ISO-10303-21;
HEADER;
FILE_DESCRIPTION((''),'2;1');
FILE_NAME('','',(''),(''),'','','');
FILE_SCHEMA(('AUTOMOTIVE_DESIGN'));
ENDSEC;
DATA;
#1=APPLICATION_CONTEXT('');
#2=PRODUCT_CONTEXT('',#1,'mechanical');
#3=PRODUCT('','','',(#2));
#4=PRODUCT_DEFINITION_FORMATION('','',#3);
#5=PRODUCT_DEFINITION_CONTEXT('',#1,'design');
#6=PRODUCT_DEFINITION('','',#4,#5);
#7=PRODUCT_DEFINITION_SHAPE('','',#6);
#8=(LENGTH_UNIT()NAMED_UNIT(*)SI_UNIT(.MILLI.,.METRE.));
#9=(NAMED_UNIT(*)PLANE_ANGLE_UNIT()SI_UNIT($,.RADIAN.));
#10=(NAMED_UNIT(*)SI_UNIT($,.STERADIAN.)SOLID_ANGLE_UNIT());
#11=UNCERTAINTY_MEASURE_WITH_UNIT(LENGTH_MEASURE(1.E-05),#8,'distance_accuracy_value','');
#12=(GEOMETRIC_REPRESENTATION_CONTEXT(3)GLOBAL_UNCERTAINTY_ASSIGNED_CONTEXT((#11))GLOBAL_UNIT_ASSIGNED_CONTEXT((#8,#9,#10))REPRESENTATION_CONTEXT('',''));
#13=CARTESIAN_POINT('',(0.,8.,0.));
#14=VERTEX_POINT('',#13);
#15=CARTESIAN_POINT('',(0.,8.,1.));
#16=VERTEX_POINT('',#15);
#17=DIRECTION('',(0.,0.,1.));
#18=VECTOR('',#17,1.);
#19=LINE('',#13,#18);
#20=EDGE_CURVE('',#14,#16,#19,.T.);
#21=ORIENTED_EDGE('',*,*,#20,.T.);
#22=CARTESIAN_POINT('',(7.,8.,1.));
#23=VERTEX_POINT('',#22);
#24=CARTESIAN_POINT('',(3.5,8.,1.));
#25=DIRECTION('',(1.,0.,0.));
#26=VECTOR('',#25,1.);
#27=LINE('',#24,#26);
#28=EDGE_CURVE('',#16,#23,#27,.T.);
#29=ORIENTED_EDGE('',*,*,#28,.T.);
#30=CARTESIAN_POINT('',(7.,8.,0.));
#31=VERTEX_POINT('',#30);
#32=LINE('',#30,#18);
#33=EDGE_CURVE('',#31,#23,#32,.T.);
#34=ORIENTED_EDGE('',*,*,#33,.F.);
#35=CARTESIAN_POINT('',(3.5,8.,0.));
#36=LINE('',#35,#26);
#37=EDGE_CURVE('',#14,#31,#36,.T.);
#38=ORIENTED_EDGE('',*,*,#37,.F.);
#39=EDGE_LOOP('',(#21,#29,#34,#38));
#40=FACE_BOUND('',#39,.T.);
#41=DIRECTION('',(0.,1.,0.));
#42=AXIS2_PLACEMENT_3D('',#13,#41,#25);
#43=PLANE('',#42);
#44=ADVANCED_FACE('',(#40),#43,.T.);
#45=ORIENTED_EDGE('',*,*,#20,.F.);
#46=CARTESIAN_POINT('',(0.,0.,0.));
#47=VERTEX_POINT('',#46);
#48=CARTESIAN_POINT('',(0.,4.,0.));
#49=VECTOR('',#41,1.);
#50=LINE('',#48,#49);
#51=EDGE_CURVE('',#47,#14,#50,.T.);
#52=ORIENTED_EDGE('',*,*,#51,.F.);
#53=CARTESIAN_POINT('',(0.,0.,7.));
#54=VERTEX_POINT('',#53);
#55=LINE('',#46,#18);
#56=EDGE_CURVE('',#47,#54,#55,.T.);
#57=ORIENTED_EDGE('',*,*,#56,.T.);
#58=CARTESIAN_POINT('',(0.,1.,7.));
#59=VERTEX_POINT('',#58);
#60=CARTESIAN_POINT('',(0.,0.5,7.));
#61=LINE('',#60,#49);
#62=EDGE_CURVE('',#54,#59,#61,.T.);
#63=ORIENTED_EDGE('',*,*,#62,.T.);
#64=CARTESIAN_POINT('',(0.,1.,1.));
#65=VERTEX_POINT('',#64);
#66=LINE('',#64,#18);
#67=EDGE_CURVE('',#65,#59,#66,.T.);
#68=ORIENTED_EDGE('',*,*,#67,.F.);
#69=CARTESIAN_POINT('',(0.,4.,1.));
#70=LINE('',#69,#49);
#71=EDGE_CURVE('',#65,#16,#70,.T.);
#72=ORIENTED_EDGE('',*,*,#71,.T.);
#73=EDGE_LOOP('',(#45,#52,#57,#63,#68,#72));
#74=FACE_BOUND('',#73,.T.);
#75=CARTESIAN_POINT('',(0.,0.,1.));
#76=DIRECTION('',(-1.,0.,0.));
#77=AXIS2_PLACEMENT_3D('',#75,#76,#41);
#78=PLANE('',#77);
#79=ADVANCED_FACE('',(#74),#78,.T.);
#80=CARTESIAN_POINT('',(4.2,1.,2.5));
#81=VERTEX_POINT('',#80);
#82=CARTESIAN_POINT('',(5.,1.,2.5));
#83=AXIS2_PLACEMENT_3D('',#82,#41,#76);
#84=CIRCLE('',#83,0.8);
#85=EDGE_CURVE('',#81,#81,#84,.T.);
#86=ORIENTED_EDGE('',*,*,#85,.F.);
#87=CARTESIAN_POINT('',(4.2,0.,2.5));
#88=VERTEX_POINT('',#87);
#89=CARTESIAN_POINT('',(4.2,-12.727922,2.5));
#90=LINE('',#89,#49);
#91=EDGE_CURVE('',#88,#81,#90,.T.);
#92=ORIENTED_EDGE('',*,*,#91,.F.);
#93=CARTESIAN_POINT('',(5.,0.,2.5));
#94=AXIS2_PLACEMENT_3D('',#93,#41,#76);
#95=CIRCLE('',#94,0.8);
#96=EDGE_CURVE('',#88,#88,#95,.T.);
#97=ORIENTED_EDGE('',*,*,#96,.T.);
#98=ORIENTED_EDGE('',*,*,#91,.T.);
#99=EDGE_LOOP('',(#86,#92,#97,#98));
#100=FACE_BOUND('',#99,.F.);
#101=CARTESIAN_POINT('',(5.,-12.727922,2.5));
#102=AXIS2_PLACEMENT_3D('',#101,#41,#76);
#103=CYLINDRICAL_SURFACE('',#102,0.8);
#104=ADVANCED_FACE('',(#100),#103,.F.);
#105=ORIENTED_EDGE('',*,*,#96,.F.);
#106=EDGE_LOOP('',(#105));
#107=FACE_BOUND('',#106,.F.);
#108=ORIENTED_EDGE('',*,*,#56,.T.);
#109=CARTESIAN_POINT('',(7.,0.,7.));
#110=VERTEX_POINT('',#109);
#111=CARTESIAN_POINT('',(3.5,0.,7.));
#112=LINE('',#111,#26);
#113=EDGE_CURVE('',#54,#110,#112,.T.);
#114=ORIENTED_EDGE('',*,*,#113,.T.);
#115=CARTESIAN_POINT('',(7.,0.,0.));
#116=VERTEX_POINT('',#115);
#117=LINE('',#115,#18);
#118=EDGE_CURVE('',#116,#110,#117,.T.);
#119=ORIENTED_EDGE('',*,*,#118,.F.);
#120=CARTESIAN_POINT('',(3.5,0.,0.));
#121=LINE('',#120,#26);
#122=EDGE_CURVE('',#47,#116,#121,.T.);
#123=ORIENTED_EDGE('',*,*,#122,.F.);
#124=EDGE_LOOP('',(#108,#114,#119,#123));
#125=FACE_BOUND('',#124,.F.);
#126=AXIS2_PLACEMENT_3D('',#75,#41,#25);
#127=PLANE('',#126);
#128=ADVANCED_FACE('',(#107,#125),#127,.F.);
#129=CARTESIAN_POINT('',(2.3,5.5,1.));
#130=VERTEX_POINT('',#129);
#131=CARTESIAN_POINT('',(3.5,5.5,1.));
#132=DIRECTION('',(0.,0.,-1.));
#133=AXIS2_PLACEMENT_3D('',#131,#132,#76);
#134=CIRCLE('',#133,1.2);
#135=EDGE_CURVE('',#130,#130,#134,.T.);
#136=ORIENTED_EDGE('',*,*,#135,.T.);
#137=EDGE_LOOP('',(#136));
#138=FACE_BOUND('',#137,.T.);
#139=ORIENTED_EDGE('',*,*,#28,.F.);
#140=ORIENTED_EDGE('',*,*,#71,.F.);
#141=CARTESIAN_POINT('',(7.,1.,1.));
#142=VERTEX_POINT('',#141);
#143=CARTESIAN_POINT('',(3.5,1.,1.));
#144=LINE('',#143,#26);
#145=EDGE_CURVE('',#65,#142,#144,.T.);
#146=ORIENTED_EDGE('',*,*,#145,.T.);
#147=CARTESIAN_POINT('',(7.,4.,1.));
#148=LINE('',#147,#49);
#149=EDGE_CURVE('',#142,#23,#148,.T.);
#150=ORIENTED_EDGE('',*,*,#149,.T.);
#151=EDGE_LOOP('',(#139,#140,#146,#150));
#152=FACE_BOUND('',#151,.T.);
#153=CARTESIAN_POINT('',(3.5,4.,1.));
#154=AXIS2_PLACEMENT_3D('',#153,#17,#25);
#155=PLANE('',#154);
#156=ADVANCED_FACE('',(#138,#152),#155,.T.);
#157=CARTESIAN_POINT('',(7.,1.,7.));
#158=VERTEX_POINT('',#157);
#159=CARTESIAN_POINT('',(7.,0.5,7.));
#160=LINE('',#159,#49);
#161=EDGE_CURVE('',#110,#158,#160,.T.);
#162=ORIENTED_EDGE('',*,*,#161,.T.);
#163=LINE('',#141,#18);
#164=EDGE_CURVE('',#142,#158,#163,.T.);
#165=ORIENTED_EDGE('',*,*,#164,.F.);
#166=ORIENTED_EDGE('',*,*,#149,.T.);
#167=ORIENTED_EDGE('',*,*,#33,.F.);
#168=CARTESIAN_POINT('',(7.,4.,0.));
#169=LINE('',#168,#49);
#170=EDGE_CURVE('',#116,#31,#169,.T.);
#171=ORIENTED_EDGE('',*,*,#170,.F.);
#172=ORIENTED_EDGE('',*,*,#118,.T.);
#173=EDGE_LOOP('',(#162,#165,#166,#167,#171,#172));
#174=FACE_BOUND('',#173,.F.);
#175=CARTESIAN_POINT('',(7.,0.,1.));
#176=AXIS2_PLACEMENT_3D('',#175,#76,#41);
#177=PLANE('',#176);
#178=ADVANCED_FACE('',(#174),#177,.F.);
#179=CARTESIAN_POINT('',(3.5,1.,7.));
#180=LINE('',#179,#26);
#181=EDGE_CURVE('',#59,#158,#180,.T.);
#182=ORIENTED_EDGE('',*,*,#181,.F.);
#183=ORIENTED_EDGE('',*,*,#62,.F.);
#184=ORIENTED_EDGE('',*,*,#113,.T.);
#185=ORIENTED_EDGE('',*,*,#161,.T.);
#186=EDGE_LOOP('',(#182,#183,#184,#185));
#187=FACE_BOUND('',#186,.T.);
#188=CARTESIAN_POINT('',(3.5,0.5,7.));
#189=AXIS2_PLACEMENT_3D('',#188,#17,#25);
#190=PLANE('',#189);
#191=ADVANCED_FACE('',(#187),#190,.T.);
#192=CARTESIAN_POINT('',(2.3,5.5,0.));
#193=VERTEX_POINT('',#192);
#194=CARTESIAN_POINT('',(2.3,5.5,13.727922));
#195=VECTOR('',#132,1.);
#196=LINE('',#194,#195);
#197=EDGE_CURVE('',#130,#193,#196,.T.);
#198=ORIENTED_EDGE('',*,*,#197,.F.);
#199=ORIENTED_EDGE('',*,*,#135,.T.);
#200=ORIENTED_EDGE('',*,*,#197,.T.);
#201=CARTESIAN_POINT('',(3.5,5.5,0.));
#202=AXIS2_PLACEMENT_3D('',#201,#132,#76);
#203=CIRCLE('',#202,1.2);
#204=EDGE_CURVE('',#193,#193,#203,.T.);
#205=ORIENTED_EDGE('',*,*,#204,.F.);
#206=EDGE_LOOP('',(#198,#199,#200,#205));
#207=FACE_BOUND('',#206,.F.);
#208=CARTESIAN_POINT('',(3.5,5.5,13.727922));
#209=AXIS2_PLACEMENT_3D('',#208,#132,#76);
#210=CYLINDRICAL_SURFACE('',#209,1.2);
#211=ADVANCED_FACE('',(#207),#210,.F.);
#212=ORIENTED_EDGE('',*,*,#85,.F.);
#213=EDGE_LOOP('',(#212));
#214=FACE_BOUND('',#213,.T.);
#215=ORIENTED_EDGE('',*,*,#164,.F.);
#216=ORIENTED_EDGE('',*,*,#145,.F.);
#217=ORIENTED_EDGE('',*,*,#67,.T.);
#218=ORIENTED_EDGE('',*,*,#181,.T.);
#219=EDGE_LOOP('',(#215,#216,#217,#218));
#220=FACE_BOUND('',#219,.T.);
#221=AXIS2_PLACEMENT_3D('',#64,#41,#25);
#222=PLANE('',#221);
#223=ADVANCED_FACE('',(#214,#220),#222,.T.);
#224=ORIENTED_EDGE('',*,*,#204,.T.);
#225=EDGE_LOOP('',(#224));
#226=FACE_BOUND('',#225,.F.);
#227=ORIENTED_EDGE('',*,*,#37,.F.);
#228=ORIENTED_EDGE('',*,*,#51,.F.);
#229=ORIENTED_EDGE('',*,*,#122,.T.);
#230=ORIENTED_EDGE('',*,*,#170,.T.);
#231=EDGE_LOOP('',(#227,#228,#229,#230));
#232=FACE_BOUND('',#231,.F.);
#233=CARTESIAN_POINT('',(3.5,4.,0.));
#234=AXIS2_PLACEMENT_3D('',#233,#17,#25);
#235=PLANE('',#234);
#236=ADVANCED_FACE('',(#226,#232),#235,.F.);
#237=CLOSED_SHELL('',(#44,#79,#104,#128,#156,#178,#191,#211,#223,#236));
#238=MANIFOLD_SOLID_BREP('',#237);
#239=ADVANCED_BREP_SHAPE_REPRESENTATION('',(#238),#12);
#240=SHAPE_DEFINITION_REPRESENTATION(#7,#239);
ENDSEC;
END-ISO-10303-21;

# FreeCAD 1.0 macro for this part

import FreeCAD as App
import Part
import Sketcher
from FreeCAD import Vector
Q = App.Units.Quantity

doc = App.newDocument("Part")
body = doc.addObject("PartDesign::Body", "Body")

# Sketch on XY plane
sketch1 = doc.addObject("Sketcher::SketchObject", "Sketch")
body.addObject(sketch1)
sketch1.AttachmentSupport = (doc.XY_Plane, [""])
sketch1.MapMode = "FlatFace"
sketch1.addGeometry([
    Part.LineSegment(Vector(0, 8, 0), Vector(0, 0, 0)),
    Part.LineSegment(Vector(0, 0, 0), Vector(7, 0, 0)),
    Part.LineSegment(Vector(7, 0, 0), Vector(7, 8, 0)),
    Part.LineSegment(Vector(7, 8, 0), Vector(0, 8, 0)),
], False)
sketch1.addConstraint([
    Sketcher.Constraint("Coincident", 0, 2, 1, 1),
    Sketcher.Constraint("Coincident", 1, 2, 2, 1),
    Sketcher.Constraint("Coincident", 2, 2, 3, 1),
    Sketcher.Constraint("Coincident", 3, 2, 0, 1),
    Sketcher.Constraint("Vertical", 0),
    Sketcher.Constraint("Horizontal", 1),
    Sketcher.Constraint("Vertical", 2),
    Sketcher.Constraint("Horizontal", 3),
    Sketcher.Constraint("Coincident", 0, 2, -1, 1),
    Sketcher.Constraint("DistanceX", 1, 1, 1, 2, Q("7 mm")),
    Sketcher.Constraint("DistanceY", 0, 2, 0, 1, Q("8 mm")),
])
pad1 = doc.addObject("PartDesign::Pad", "Pad")
body.addObject(pad1)
pad1.Profile = sketch1
pad1.Length = 1

# Sketch on XY plane
sketch2 = doc.addObject("Sketcher::SketchObject", "Sketch001")
body.addObject(sketch2)
sketch2.AttachmentSupport = (doc.XY_Plane, [""])
sketch2.MapMode = "FlatFace"
sketch2.AttachmentOffset = App.Placement(Vector(0, 0, 1), App.Rotation())
sketch2.addGeometry([
    Part.LineSegment(Vector(0, 1, 0), Vector(0, 0, 0)),
    Part.LineSegment(Vector(0, 0, 0), Vector(7, 0, 0)),
    Part.LineSegment(Vector(7, 0, 0), Vector(7, 1, 0)),
    Part.LineSegment(Vector(7, 1, 0), Vector(0, 1, 0)),
], False)
sketch2.addConstraint([
    Sketcher.Constraint("Coincident", 0, 2, 1, 1),
    Sketcher.Constraint("Coincident", 1, 2, 2, 1),
    Sketcher.Constraint("Coincident", 2, 2, 3, 1),
    Sketcher.Constraint("Coincident", 3, 2, 0, 1),
    Sketcher.Constraint("Vertical", 0),
    Sketcher.Constraint("Horizontal", 1),
    Sketcher.Constraint("Vertical", 2),
    Sketcher.Constraint("Horizontal", 3),
    Sketcher.Constraint("Coincident", 0, 2, -1, 1),
    Sketcher.Constraint("DistanceX", 1, 1, 1, 2, Q("7 mm")),
    Sketcher.Constraint("DistanceY", 0, 2, 0, 1, Q("1 mm")),
])
pad2 = doc.addObject("PartDesign::Pad", "Pad001")
body.addObject(pad2)
pad2.Profile = sketch2
pad2.Length = 6

# Sketch on XY plane
sketch3 = doc.addObject("Sketcher::SketchObject", "Sketch002")
body.addObject(sketch3)
sketch3.AttachmentSupport = (doc.XY_Plane, [""])
sketch3.MapMode = "FlatFace"
sketch3.AttachmentOffset = App.Placement(Vector(0, 0, 1), App.Rotation())
sketch3.addGeometry(Part.Circle(Vector(3.5, 5.5, 0), Vector(0, 0, 1), 1.2), False)
sketch3.addConstraint([
    Sketcher.Constraint("Diameter", 0, Q("2.4 mm")),
    Sketcher.Constraint("DistanceX", -1, 1, 0, 3, Q("3.5 mm")),
    Sketcher.Constraint("DistanceY", -1, 1, 0, 3, Q("5.5 mm")),
])
doc.recompute()
hole = doc.addObject("PartDesign::Hole", "Hole")
body.addObject(hole)
hole.Profile = sketch3
hole.ThreadType = "None"
hole.Diameter = 2.4
hole.DepthType = "ThroughAll"

# Sketch on XZ plane
sketch4 = doc.addObject("Sketcher::SketchObject", "Sketch003")
body.addObject(sketch4)
sketch4.AttachmentSupport = (doc.XZ_Plane, [""])
sketch4.MapMode = "FlatFace"
sketch4.addGeometry(Part.Circle(Vector(5, 2.5, 0), Vector(0, 0, 1), 0.8), False)
sketch4.addConstraint([
    Sketcher.Constraint("Diameter", 0, Q("1.6 mm")),
    Sketcher.Constraint("DistanceX", -1, 1, 0, 3, Q("5 mm")),
    Sketcher.Constraint("DistanceY", -1, 1, 0, 3, Q("2.5 mm")),
])
doc.recompute()
hole2 = doc.addObject("PartDesign::Hole", "Hole001")
body.addObject(hole2)
hole2.Profile = sketch4
hole2.ThreadType = "None"
hole2.Diameter = 1.6
hole2.DepthType = "ThroughAll"

doc.recompute()
